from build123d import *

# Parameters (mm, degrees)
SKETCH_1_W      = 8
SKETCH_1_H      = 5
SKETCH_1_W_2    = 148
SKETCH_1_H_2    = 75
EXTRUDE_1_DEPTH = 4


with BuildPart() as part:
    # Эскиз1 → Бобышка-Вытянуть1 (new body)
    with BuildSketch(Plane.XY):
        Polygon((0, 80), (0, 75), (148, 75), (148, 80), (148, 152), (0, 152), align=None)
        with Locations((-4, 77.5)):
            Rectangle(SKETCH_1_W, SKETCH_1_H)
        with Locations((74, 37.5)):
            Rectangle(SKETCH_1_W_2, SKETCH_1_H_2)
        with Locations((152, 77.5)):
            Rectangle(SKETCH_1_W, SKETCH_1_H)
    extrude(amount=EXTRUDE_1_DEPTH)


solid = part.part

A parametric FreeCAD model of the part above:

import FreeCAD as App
import Part
import Sketcher

V = App.Vector


def add_polygon(sketch, points):
    """Adds a closed chain of lines whose ends are joined by coincident constraints."""
    first, n = sketch.GeometryCount, len(points)
    for a, b in zip(points, points[1:] + points[:1]):
        sketch.addGeometry(Part.LineSegment(App.Vector(*a, 0), App.Vector(*b, 0)), False)
    for i in range(n):
        sketch.addConstraint(Sketcher.Constraint("Coincident", first + i, 2, first + (i + 1) % n, 1))

doc = App.newDocument("Part")
body = doc.addObject("PartDesign::Body", "Body")

sketch1 = body.newObject("Sketcher::SketchObject", "Sketch")
sketch1.AttachmentSupport = (doc.getObject("XY_Plane"), [""])
sketch1.MapMode = "FlatFace"
add_polygon(sketch1, [(148, 152), (0, 152), (0, 80), (-8, 80), (-8, 75), (0, 75), (0, 0), (148, 0), (148, 75), (156, 75), (156, 80), (148, 80)])
sketch1.addConstraint([
    Sketcher.Constraint("Horizontal", 0),
    Sketcher.Constraint("Vertical", 1),
    Sketcher.Constraint("Horizontal", 2),
    Sketcher.Constraint("Vertical", 3),
    Sketcher.Constraint("Horizontal", 4),
    Sketcher.Constraint("Vertical", 5),
    Sketcher.Constraint("Horizontal", 6),
    Sketcher.Constraint("Vertical", 7),
    Sketcher.Constraint("Horizontal", 8),
    Sketcher.Constraint("Vertical", 9),
    Sketcher.Constraint("Horizontal", 10),
    Sketcher.Constraint("Vertical", 11),
    Sketcher.Constraint("Coincident", 5, 2, -1, 1),
    Sketcher.Constraint("PointOnObject", 0, 2, -2),
    Sketcher.Constraint("Horizontal", 4, 2, 7, 2),
    Sketcher.Constraint("Horizontal", 2, 2, 9, 2),
    Sketcher.Constraint("Vertical", 7, 2, 10, 2),
    Sketcher.Constraint("Equal", 4, 8),
    Sketcher.Constraint("DistanceX", 0, 2, 0, 1, 148.0),
    Sketcher.Constraint("DistanceX", 2, 2, 2, 1, 8.0),
    Sketcher.Constraint("DistanceY", 1, 2, 1, 1, 72.0),
    Sketcher.Constraint("DistanceY", 3, 2, 3, 1, 5.0),
    Sketcher.Constraint("DistanceY", 5, 2, 5, 1, 75.0),
])
pad1 = body.newObject("PartDesign::Pad", "Pad")
pad1.Profile = sketch1
pad1.Length = 4

doc.recompute()
